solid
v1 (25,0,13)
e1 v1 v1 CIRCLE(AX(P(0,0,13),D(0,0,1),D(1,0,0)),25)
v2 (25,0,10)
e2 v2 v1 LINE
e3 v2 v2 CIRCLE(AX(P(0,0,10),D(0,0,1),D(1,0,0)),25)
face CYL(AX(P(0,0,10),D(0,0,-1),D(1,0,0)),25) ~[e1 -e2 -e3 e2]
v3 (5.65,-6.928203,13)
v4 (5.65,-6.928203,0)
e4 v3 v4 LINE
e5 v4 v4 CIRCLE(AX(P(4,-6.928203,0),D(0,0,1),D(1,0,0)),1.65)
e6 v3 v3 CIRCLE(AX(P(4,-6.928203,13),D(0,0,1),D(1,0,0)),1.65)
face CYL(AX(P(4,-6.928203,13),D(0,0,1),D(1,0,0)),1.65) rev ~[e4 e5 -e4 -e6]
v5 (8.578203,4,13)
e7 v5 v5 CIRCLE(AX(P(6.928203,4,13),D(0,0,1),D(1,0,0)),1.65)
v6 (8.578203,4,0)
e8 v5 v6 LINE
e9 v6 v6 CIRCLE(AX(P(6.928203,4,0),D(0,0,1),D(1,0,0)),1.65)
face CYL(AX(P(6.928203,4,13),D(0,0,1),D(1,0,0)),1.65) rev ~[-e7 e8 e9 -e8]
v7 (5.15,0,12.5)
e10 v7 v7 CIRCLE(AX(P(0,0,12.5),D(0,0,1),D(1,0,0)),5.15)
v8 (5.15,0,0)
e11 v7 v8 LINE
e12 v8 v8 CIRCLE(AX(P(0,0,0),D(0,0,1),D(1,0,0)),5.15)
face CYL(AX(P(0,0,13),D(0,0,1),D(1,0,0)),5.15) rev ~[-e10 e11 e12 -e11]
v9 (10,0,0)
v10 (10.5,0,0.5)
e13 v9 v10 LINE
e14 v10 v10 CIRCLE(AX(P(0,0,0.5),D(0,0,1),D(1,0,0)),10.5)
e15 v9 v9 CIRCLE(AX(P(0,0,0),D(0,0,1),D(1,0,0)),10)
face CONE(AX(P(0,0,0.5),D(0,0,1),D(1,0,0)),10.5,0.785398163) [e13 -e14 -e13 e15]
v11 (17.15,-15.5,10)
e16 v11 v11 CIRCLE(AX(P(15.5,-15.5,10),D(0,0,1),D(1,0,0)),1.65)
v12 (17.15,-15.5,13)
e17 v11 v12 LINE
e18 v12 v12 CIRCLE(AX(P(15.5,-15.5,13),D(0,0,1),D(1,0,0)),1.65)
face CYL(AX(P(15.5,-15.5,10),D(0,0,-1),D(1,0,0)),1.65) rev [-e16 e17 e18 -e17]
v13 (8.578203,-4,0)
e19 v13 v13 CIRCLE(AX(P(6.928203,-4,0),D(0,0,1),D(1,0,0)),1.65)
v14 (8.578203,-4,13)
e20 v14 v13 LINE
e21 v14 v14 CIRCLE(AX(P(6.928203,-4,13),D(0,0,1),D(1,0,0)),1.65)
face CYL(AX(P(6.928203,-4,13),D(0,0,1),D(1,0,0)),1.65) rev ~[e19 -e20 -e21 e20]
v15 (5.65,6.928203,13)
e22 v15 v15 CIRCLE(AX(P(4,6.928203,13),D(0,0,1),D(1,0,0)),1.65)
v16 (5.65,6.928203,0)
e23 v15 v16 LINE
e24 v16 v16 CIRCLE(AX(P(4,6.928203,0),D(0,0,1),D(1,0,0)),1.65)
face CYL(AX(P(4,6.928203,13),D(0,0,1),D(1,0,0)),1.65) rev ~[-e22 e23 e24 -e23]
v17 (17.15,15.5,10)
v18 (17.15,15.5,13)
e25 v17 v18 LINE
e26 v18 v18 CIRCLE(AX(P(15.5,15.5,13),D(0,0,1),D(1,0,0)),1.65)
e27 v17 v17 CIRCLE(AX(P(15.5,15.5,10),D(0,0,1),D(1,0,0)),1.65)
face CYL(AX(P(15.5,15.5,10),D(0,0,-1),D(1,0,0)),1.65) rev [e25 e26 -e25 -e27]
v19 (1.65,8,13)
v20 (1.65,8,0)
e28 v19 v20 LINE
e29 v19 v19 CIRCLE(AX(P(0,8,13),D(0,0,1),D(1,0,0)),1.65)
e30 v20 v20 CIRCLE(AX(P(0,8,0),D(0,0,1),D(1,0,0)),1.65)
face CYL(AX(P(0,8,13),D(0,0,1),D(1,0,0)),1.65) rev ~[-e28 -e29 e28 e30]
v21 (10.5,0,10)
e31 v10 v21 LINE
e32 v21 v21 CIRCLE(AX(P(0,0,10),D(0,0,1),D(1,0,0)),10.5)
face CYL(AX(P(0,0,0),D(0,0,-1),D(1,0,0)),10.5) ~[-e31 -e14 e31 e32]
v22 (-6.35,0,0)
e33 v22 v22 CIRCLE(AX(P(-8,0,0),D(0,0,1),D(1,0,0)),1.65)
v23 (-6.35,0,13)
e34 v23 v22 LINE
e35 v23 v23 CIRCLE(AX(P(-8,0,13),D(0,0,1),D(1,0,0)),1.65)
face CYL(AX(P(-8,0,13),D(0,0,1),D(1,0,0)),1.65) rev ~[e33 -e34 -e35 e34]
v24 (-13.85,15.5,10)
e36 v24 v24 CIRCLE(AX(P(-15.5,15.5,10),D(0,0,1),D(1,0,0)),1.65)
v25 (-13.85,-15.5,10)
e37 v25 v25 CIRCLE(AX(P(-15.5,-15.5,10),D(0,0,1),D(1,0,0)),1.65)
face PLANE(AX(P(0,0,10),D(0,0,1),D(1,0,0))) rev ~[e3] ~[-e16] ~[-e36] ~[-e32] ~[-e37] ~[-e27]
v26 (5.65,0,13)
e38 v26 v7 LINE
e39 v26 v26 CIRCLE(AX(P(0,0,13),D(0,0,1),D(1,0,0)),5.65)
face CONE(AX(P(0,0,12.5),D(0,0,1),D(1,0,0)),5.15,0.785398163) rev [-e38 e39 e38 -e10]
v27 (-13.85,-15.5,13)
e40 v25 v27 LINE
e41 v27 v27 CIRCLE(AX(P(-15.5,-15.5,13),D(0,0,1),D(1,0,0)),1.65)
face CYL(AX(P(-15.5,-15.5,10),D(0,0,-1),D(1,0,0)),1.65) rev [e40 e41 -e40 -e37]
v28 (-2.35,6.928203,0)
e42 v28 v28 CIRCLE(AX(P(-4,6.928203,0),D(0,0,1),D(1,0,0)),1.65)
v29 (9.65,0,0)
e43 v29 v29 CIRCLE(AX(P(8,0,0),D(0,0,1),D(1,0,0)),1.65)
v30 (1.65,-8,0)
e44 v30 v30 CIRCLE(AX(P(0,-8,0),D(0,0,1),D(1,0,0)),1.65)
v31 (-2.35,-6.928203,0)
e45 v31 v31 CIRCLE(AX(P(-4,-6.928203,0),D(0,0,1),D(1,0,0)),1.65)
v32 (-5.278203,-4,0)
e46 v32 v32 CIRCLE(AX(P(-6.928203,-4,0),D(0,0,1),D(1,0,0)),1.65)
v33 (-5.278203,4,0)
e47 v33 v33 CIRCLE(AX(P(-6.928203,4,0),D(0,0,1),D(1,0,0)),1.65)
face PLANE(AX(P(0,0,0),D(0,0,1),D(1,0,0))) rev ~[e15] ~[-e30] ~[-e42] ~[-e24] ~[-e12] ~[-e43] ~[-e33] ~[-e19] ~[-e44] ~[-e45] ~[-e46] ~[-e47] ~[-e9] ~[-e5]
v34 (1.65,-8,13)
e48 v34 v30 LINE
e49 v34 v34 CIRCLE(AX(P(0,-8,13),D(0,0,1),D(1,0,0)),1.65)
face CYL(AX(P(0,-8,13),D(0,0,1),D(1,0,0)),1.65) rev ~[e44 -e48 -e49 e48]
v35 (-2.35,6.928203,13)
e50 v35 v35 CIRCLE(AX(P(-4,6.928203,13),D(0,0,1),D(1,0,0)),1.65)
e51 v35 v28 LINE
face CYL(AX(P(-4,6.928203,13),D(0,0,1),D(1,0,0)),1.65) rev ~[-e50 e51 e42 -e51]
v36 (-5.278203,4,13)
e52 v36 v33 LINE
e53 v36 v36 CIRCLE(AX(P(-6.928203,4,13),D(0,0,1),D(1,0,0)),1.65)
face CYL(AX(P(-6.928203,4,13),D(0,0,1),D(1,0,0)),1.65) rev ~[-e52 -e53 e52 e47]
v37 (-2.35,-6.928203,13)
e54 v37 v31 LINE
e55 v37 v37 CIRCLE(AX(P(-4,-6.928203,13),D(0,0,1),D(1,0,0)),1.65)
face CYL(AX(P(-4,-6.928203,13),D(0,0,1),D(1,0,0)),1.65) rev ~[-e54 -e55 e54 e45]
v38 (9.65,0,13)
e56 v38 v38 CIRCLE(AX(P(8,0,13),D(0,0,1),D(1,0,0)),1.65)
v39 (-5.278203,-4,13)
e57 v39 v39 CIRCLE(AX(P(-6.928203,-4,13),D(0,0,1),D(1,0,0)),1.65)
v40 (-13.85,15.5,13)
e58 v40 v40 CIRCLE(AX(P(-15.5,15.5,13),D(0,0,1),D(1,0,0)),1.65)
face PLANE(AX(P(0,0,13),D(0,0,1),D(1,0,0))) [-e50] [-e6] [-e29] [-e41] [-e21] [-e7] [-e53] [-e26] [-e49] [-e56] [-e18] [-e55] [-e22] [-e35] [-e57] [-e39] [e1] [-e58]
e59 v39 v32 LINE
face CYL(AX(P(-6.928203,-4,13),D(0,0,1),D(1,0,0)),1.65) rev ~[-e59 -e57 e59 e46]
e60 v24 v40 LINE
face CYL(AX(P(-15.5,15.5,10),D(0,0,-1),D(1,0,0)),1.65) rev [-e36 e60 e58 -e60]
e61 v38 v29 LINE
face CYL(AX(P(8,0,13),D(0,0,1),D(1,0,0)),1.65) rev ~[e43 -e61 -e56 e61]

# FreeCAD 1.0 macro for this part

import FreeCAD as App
import Part
import Sketcher
Q = App.Units.Quantity


def edges_at(feature, points):
    """Names of the edges that pass closest to the given points."""
    edges = feature.Shape.Edges
    near = lambda p: min(range(len(edges)), key=lambda i: edges[i].distToShape(Part.Vertex(*p))[0])
    return sorted({f"Edge{near(p) + 1}" for p in points})

doc = App.newDocument("Part")
body = doc.addObject("PartDesign::Body", "Body")

# Sketch on XY plane
sketch1 = doc.addObject("Sketcher::SketchObject", "Sketch")
body.addObject(sketch1)
sketch1.AttachmentSupport = (doc.XY_Plane, [""])
sketch1.MapMode = "FlatFace"
sketch1.addGeometry(Part.Circle(App.Vector(0, 0, 0), App.Vector(0, 0, 1), 10), False)
sketch1.addConstraint([
    Sketcher.Constraint("Coincident", 0, 3, -1, 1),
    Sketcher.Constraint("Diameter", 0, Q("21 mm")),
])
pad1 = doc.addObject("PartDesign::Pad", "Pad")
body.addObject(pad1)
pad1.Profile = sketch1
pad1.Length = 10

# Sketch on XY plane
sketch2 = doc.addObject("Sketcher::SketchObject", "Sketch001")
body.addObject(sketch2)
sketch2.AttachmentSupport = (doc.XY_Plane, [""])
sketch2.MapMode = "FlatFace"
sketch2.AttachmentOffset = App.Placement(App.Vector(0, 0, 10), App.Rotation())
sketch2.addGeometry([
    Part.Circle(App.Vector(0, 0, 0), App.Vector(0, 0, 1), 25),  # 0
    Part.Circle(App.Vector(-15.5, -15.5, 0), App.Vector(0, 0, 1), 1.6),  # 1
    Part.Circle(App.Vector(15.5, -15.5, 0), App.Vector(0, 0, 1), 1.6),  # 2
    Part.Circle(App.Vector(-15.5, 15.5, 0), App.Vector(0, 0, 1), 1.6),  # 3
    Part.Circle(App.Vector(15.5, 15.5, 0), App.Vector(0, 0, 1), 1.6),  # 4
], False)
sketch2.addConstraint([
    Sketcher.Constraint("Coincident", 0, 3, -1, 1),
    Sketcher.Constraint("Equal", 1, 2),
    Sketcher.Constraint("Equal", 2, 3),
    Sketcher.Constraint("Equal", 3, 4),
    Sketcher.Constraint("Symmetric", 2, 3, 3, 3, -1, 1),
    Sketcher.Constraint("Symmetric", 1, 3, 4, 3, -1, 1),
    Sketcher.Constraint("Symmetric", 1, 3, 2, 3, -2),
    Sketcher.Constraint("Diameter", 0, Q("50 mm")),
    Sketcher.Constraint("Diameter", 1, Q("3.3 mm")),
    Sketcher.Constraint("DistanceX", 1, 3, 2, 3, Q("31 mm")),
    Sketcher.Constraint("DistanceY", 1, 3, 3, 3, Q("31 mm")),
])
pad2 = doc.addObject("PartDesign::Pad", "Pad001")
body.addObject(pad2)
pad2.Profile = sketch2
pad2.Length = 3

# Sketch on XY plane
sketch3 = doc.addObject("Sketcher::SketchObject", "Sketch002")
body.addObject(sketch3)
sketch3.AttachmentSupport = (doc.XY_Plane, [""])
sketch3.MapMode = "FlatFace"
sketch3.AttachmentOffset = App.Placement(App.Vector(0, 0, 13), App.Rotation())
sketch3.addGeometry(Part.Circle(App.Vector(0, 0, 0), App.Vector(0, 0, 1), 5), False)
sketch3.addConstraint([
    Sketcher.Constraint("Coincident", 0, 3, -1, 1),
    Sketcher.Constraint("Diameter", 0, Q("10.3 mm")),
])
pocket1 = doc.addObject("PartDesign::Pocket", "Pocket")
body.addObject(pocket1)
pocket1.Profile = sketch3
pocket1.Type = "ThroughAll"

# Sketch on XY plane
sketch4 = doc.addObject("Sketcher::SketchObject", "Sketch003")
body.addObject(sketch4)
sketch4.AttachmentSupport = (doc.XY_Plane, [""])
sketch4.MapMode = "FlatFace"
sketch4.AttachmentOffset = App.Placement(App.Vector(0, 0, 13), App.Rotation())
sketch4.addGeometry([
    Part.Circle(App.Vector(0, 8, 0), App.Vector(0, 0, 1), 1.6),  # 0
    Part.Circle(App.Vector(4, 6.9, 0), App.Vector(0, 0, 1), 1.6),  # 1
    Part.Circle(App.Vector(6.9, 4, 0), App.Vector(0, 0, 1), 1.6),  # 2
    Part.Circle(App.Vector(8, 0, 0), App.Vector(0, 0, 1), 1.6),  # 3
    Part.Circle(App.Vector(6.9, -4, 0), App.Vector(0, 0, 1), 1.6),  # 4
    Part.Circle(App.Vector(4, -6.9, 0), App.Vector(0, 0, 1), 1.6),  # 5
    Part.Circle(App.Vector(0, -8, 0), App.Vector(0, 0, 1), 1.6),  # 6
    Part.Circle(App.Vector(-4, -6.9, 0), App.Vector(0, 0, 1), 1.6),  # 7
    Part.Circle(App.Vector(-6.9, -4, 0), App.Vector(0, 0, 1), 1.6),  # 8
    Part.Circle(App.Vector(-8, 0, 0), App.Vector(0, 0, 1), 1.6),  # 9
    Part.Circle(App.Vector(-6.9, 4, 0), App.Vector(0, 0, 1), 1.6),  # 10
    Part.Circle(App.Vector(-4, 6.9, 0), App.Vector(0, 0, 1), 1.6),  # 11
], False)
sketch4.addConstraint([
    Sketcher.Constraint("Equal", 0, 1),
    Sketcher.Constraint("Equal", 1, 2),
    Sketcher.Constraint("Equal", 2, 3),
    Sketcher.Constraint("Equal", 3, 4),
    Sketcher.Constraint("Equal", 4, 5),
    Sketcher.Constraint("Equal", 5, 6),
    Sketcher.Constraint("Equal", 6, 7),
    Sketcher.Constraint("Equal", 7, 8),
    Sketcher.Constraint("Equal", 8, 9),
    Sketcher.Constraint("Equal", 9, 10),
    Sketcher.Constraint("Equal", 10, 11),
    Sketcher.Constraint("Symmetric", 0, 3, 6, 3, -1, 1),
    Sketcher.Constraint("Symmetric", 1, 3, 7, 3, -1, 1),
    Sketcher.Constraint("Symmetric", 2, 3, 8, 3, -1, 1),
    Sketcher.Constraint("Symmetric", 3, 3, 9, 3, -1, 1),
    Sketcher.Constraint("Symmetric", 4, 3, 10, 3, -1, 1),
    Sketcher.Constraint("Symmetric", 5, 3, 11, 3, -1, 1),
    Sketcher.Constraint("Symmetric", 5, 3, 7, 3, -2),
    Sketcher.Constraint("Symmetric", 4, 3, 8, 3, -2),
    Sketcher.Constraint("PointOnObject", 0, 3, -2),
    Sketcher.Constraint("PointOnObject", 3, 3, -1),
    Sketcher.Constraint("Diameter", 0, Q("3.3 mm")),
    Sketcher.Constraint("DistanceY", -1, 1, 0, 3, Q("8 mm")),
    Sketcher.Constraint("DistanceX", -1, 1, 1, 3, Q("4 mm")),
    Sketcher.Constraint("DistanceY", -1, 1, 2, 3, Q("4 mm")),
    Sketcher.Constraint("DistanceX", -1, 1, 3, 3, Q("8 mm")),
    Sketcher.Constraint("DistanceY", -1, 1, 1, 3, Q("6.928203 mm")),
    Sketcher.Constraint("DistanceX", -1, 1, 2, 3, Q("6.928203 mm")),
])
pocket2 = doc.addObject("PartDesign::Pocket", "Pocket001")
body.addObject(pocket2)
pocket2.Profile = sketch4
pocket2.Type = "ThroughAll"
doc.recompute()

chamfer = doc.addObject("PartDesign::Chamfer", "Chamfer")
body.addObject(chamfer)
chamfer.Base = (pocket2, edges_at(pocket2, [(-5.15, 0, 13)]))
chamfer.Size = 0.5
doc.recompute()

chamfer2 = doc.addObject("PartDesign::Chamfer", "Chamfer001")
body.addObject(chamfer2)
chamfer2.Base = (chamfer, edges_at(chamfer, [(-10.5, 0, 0)]))
chamfer2.Size = 0.5

doc.recompute()
